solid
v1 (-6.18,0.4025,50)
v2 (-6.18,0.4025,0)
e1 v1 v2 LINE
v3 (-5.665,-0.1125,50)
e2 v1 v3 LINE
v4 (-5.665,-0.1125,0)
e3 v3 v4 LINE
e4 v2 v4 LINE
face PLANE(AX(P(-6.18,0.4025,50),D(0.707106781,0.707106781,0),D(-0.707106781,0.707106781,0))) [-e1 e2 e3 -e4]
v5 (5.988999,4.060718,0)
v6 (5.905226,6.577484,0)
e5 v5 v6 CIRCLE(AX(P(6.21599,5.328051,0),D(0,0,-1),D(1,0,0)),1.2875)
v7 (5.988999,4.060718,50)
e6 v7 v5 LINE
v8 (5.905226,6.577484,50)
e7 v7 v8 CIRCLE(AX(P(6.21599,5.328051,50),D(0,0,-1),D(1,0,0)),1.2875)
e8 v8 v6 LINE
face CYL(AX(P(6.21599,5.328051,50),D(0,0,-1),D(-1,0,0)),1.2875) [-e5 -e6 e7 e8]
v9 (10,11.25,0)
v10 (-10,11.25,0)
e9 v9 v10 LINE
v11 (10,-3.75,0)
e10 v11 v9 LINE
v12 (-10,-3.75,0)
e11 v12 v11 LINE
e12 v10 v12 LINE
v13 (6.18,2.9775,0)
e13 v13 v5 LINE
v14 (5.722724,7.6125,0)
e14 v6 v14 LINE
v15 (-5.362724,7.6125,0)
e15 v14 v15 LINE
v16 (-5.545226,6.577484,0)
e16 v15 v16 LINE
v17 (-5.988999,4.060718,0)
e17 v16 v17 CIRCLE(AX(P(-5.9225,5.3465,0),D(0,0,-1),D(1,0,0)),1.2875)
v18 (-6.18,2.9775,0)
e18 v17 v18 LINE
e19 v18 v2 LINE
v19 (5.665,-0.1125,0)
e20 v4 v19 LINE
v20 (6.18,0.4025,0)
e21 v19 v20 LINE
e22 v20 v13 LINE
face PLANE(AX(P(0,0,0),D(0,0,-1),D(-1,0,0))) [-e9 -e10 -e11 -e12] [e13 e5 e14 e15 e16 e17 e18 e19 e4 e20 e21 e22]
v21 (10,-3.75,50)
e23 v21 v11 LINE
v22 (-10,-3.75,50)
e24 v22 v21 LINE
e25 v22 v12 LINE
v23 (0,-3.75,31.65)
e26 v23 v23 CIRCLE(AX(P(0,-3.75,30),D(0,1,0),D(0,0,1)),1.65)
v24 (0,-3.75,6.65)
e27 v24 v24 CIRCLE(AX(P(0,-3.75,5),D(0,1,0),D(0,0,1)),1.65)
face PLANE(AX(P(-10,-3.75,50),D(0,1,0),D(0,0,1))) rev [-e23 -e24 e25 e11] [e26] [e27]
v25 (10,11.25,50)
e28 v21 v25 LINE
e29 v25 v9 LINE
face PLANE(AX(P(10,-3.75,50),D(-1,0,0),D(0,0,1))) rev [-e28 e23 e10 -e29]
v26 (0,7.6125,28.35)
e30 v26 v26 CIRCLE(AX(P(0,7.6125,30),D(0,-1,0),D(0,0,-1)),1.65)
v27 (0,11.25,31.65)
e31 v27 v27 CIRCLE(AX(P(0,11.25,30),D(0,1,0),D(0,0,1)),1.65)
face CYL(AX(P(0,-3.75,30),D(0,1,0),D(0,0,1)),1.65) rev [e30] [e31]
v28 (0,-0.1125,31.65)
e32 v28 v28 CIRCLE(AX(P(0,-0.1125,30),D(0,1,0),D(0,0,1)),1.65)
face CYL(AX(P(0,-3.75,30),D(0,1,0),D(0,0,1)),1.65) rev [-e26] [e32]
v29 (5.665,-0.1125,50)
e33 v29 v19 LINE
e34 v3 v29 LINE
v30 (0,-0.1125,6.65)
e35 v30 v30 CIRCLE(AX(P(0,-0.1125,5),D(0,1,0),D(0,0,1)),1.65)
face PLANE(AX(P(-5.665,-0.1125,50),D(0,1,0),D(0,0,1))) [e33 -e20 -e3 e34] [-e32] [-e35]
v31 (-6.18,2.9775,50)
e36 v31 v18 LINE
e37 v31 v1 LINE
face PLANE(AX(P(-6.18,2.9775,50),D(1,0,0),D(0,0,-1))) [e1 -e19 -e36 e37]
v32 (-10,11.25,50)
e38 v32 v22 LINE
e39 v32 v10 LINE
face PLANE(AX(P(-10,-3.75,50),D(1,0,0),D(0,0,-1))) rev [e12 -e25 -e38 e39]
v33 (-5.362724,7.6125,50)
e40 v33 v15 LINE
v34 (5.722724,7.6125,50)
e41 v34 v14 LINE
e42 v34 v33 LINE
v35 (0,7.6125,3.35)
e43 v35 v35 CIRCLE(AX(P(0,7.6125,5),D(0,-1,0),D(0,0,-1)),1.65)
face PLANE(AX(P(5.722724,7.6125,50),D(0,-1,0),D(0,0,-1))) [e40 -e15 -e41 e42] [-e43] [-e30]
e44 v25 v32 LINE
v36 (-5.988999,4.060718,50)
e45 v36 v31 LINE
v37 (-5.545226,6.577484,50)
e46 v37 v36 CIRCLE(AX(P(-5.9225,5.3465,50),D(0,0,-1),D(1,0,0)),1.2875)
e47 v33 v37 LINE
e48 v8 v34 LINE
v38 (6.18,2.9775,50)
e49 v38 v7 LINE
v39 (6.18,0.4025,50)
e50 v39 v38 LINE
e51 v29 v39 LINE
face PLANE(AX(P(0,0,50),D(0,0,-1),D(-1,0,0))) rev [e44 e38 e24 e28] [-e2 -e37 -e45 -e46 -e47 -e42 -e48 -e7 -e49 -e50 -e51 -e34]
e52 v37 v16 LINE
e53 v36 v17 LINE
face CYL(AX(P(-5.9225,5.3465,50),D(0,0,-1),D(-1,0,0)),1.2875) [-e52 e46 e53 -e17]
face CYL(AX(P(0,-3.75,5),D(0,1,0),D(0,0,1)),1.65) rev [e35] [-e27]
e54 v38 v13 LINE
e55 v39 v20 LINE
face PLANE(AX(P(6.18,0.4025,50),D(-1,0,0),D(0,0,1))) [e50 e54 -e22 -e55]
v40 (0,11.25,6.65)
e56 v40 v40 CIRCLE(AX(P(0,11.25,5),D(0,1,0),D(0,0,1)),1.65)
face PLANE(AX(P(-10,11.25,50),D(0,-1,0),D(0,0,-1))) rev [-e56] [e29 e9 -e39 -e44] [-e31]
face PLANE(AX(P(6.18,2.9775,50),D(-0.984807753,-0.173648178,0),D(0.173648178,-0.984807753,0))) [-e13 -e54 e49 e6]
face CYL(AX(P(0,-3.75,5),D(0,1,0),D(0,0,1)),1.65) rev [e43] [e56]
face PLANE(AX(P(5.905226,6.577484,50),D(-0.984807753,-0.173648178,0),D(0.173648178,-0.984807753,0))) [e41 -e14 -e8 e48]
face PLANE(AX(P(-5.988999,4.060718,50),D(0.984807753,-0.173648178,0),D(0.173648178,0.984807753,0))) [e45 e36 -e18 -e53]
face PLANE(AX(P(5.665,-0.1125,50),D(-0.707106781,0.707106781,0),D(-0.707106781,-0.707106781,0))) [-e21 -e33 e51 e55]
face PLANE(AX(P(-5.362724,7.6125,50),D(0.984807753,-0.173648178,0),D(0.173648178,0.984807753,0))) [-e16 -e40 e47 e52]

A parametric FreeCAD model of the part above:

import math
import FreeCAD as App
import Part
import Sketcher

V = App.Vector


def add_polygon(sketch, points):
    """Adds a closed chain of lines whose ends are joined by coincident constraints."""
    first, n = sketch.GeometryCount, len(points)
    for a, b in zip(points, points[1:] + points[:1]):
        sketch.addGeometry(Part.LineSegment(App.Vector(*a, 0), App.Vector(*b, 0)), False)
    for i in range(n):
        sketch.addConstraint(Sketcher.Constraint("Coincident", first + i, 2, first + (i + 1) % n, 1))

doc = App.newDocument("Part")
body = doc.addObject("PartDesign::Body", "Body")

# Sketch on XY plane
sketch1 = body.newObject("Sketcher::SketchObject", "Sketch")
sketch1.AttachmentSupport = (doc.getObject("XY_Plane"), [""])
sketch1.MapMode = "FlatFace"
add_polygon(sketch1, [(-10, 11.25), (-10, -3.75), (10, -3.75), (10, 11.25)])  # lines 0-3
sketch1.addGeometry(Part.LineSegment(V(6.18, 2.9775, 0), V(6.18, 0.4025, 0)), False)  # 4
sketch1.addGeometry(Part.LineSegment(V(6.18, 0.4025, 0), V(5.665, -0.1125, 0)), False)  # 5
sketch1.addGeometry(Part.LineSegment(V(5.665, -0.1125, 0), V(-5.665, -0.1125, 0)), False)  # 6
sketch1.addGeometry(Part.LineSegment(V(-5.665, -0.1125, 0), V(-6.18, 0.4025, 0)), False)  # 7
sketch1.addGeometry(Part.LineSegment(V(-6.18, 0.4025, 0), V(-6.18, 2.9775, 0)), False)  # 8
sketch1.addGeometry(Part.LineSegment(V(-6.18, 2.9775, 0), V(-5.988999, 4.060718, 0)), False)  # 9
sketch1.addGeometry(Part.ArcOfCircle(Part.Circle(V(-5.9225, 5.3465, 0), V(0, 0, 1), 1.2875), math.radians(-92.960643), math.radians(72.960643)), False)  # 10
sketch1.addGeometry(Part.LineSegment(V(-5.545226, 6.577484, 0), V(-5.362724, 7.6125, 0)), False)  # 11
sketch1.addGeometry(Part.LineSegment(V(-5.362724, 7.6125, 0), V(5.722724, 7.6125, 0)), False)  # 12
sketch1.addGeometry(Part.LineSegment(V(5.722724, 7.6125, 0), V(5.905226, 6.577484, 0)), False)  # 13
sketch1.addGeometry(Part.ArcOfCircle(Part.Circle(V(6.21599, 5.328051, 0), V(0, 0, 1), 1.2875), math.radians(103.967431), math.radians(259.84548)), False)  # 14
sketch1.addGeometry(Part.LineSegment(V(5.988999, 4.060718, 0), V(6.18, 2.9775, 0)), False)  # 15
sketch1.addConstraint([
    Sketcher.Constraint("Coincident", 4, 2, 5, 1),
    Sketcher.Constraint("Coincident", 5, 2, 6, 1),
    Sketcher.Constraint("Coincident", 6, 2, 7, 1),
    Sketcher.Constraint("Coincident", 7, 2, 8, 1),
    Sketcher.Constraint("Coincident", 8, 2, 9, 1),
    Sketcher.Constraint("Coincident", 9, 2, 10, 1),
    Sketcher.Constraint("Coincident", 10, 2, 11, 1),
    Sketcher.Constraint("Coincident", 11, 2, 12, 1),
    Sketcher.Constraint("Coincident", 12, 2, 13, 1),
    Sketcher.Constraint("Coincident", 13, 2, 14, 1),
    Sketcher.Constraint("Coincident", 14, 2, 15, 1),
    Sketcher.Constraint("Coincident", 15, 2, 4, 1),
    Sketcher.Constraint("Vertical", 0),
    Sketcher.Constraint("Horizontal", 1),
    Sketcher.Constraint("Vertical", 2),
    Sketcher.Constraint("Horizontal", 3),
    Sketcher.Constraint("Vertical", 4),
    Sketcher.Constraint("Horizontal", 6),
    Sketcher.Constraint("Vertical", 8),
    Sketcher.Constraint("Horizontal", 12),
    Sketcher.Constraint("DistanceX", 1, 1, 1, 2, 20.0),
    Sketcher.Constraint("DistanceY", 0, 2, 0, 1, 15.0),
    Sketcher.Constraint("DistanceX", 0, 2, -1, 1, 10.0),
    Sketcher.Constraint("DistanceX", 6, 2, 6, 1, 11.33),
    Sketcher.Constraint("Radius", 10, 1.2875),
    Sketcher.Constraint("Radius", 14, 1.2875),
    Sketcher.Constraint("DistanceY", 4, 2, 4, 1, 2.575),
    Sketcher.Constraint("DistanceY", 8, 1, 8, 2, 2.575),
    Sketcher.Constraint("DistanceY", 0, 2, -1, 1, 3.75),
    Sketcher.Constraint("DistanceX", -1, 1, 4, 2, 6.18),
    Sketcher.Constraint("DistanceX", 7, 2, -1, 1, 6.18),
    Sketcher.Constraint("DistanceY", 6, 2, 8, 2, 3.09),
    Sketcher.Constraint("DistanceY", 4, 2, 12, 2, 7.21),
    Sketcher.Constraint("DistanceY", 5, 2, 15, 2, 3.09),
    Sketcher.Constraint("DistanceX", -1, 1, 5, 2, 5.665),
    Sketcher.Constraint("DistanceX", 9, 2, -1, 1, 5.988999),
    Sketcher.Constraint("DistanceX", -1, 1, 14, 2, 5.988999),
    Sketcher.Constraint("DistanceY", 4, 2, 10, 3, 4.944),
    Sketcher.Constraint("DistanceX", 12, 1, 12, 2, 11.085449),
    Sketcher.Constraint("DistanceX", 10, 3, -1, 1, 5.9225),
    Sketcher.Constraint("DistanceY", -1, 1, 10, 3, 5.3465),
    Sketcher.Constraint("DistanceX", 10, 2, 11, 2, 0.182501),
    Sketcher.Constraint("DistanceX", 12, 2, 13, 2, 0.182501),
    Sketcher.Constraint("Distance", 15, 1.099929),
    Sketcher.Constraint("DistanceX", -1, 1, 14, 3, 6.21599),
    Sketcher.Constraint("Distance", 11, 1.050983),
])
pad1 = body.newObject("PartDesign::Pad", "Pad")
pad1.Profile = sketch1
pad1.Length = 50

# Sketch on XZ plane
sketch2 = body.newObject("Sketcher::SketchObject", "Sketch001")
sketch2.AttachmentSupport = (doc.getObject("XZ_Plane"), [""])
sketch2.MapMode = "FlatFace"
sketch2.AttachmentOffset = App.Placement(V(0, 0, -11.25), App.Rotation())
sketch2.addGeometry([
    Part.Circle(V(0, 5, 0), V(0, 0, 1), 1.65),
    Part.Circle(V(0, 30, 0), V(0, 0, 1), 1.65),
], False)
sketch2.addConstraint([
    Sketcher.Constraint("Equal", 0, 1),
    Sketcher.Constraint("PointOnObject", 0, 3, -2),
    Sketcher.Constraint("PointOnObject", 1, 3, -2),
    Sketcher.Constraint("Diameter", 0, 3.3),
    Sketcher.Constraint("DistanceY", -1, 1, 0, 3, 5.0),
    Sketcher.Constraint("DistanceY", -1, 1, 1, 3, 30.0),
])
pocket1 = body.newObject("PartDesign::Pocket", "Pocket")
pocket1.Profile = sketch2
pocket1.Type = "ThroughAll"
pocket1.Reversed = True

doc.recompute()
